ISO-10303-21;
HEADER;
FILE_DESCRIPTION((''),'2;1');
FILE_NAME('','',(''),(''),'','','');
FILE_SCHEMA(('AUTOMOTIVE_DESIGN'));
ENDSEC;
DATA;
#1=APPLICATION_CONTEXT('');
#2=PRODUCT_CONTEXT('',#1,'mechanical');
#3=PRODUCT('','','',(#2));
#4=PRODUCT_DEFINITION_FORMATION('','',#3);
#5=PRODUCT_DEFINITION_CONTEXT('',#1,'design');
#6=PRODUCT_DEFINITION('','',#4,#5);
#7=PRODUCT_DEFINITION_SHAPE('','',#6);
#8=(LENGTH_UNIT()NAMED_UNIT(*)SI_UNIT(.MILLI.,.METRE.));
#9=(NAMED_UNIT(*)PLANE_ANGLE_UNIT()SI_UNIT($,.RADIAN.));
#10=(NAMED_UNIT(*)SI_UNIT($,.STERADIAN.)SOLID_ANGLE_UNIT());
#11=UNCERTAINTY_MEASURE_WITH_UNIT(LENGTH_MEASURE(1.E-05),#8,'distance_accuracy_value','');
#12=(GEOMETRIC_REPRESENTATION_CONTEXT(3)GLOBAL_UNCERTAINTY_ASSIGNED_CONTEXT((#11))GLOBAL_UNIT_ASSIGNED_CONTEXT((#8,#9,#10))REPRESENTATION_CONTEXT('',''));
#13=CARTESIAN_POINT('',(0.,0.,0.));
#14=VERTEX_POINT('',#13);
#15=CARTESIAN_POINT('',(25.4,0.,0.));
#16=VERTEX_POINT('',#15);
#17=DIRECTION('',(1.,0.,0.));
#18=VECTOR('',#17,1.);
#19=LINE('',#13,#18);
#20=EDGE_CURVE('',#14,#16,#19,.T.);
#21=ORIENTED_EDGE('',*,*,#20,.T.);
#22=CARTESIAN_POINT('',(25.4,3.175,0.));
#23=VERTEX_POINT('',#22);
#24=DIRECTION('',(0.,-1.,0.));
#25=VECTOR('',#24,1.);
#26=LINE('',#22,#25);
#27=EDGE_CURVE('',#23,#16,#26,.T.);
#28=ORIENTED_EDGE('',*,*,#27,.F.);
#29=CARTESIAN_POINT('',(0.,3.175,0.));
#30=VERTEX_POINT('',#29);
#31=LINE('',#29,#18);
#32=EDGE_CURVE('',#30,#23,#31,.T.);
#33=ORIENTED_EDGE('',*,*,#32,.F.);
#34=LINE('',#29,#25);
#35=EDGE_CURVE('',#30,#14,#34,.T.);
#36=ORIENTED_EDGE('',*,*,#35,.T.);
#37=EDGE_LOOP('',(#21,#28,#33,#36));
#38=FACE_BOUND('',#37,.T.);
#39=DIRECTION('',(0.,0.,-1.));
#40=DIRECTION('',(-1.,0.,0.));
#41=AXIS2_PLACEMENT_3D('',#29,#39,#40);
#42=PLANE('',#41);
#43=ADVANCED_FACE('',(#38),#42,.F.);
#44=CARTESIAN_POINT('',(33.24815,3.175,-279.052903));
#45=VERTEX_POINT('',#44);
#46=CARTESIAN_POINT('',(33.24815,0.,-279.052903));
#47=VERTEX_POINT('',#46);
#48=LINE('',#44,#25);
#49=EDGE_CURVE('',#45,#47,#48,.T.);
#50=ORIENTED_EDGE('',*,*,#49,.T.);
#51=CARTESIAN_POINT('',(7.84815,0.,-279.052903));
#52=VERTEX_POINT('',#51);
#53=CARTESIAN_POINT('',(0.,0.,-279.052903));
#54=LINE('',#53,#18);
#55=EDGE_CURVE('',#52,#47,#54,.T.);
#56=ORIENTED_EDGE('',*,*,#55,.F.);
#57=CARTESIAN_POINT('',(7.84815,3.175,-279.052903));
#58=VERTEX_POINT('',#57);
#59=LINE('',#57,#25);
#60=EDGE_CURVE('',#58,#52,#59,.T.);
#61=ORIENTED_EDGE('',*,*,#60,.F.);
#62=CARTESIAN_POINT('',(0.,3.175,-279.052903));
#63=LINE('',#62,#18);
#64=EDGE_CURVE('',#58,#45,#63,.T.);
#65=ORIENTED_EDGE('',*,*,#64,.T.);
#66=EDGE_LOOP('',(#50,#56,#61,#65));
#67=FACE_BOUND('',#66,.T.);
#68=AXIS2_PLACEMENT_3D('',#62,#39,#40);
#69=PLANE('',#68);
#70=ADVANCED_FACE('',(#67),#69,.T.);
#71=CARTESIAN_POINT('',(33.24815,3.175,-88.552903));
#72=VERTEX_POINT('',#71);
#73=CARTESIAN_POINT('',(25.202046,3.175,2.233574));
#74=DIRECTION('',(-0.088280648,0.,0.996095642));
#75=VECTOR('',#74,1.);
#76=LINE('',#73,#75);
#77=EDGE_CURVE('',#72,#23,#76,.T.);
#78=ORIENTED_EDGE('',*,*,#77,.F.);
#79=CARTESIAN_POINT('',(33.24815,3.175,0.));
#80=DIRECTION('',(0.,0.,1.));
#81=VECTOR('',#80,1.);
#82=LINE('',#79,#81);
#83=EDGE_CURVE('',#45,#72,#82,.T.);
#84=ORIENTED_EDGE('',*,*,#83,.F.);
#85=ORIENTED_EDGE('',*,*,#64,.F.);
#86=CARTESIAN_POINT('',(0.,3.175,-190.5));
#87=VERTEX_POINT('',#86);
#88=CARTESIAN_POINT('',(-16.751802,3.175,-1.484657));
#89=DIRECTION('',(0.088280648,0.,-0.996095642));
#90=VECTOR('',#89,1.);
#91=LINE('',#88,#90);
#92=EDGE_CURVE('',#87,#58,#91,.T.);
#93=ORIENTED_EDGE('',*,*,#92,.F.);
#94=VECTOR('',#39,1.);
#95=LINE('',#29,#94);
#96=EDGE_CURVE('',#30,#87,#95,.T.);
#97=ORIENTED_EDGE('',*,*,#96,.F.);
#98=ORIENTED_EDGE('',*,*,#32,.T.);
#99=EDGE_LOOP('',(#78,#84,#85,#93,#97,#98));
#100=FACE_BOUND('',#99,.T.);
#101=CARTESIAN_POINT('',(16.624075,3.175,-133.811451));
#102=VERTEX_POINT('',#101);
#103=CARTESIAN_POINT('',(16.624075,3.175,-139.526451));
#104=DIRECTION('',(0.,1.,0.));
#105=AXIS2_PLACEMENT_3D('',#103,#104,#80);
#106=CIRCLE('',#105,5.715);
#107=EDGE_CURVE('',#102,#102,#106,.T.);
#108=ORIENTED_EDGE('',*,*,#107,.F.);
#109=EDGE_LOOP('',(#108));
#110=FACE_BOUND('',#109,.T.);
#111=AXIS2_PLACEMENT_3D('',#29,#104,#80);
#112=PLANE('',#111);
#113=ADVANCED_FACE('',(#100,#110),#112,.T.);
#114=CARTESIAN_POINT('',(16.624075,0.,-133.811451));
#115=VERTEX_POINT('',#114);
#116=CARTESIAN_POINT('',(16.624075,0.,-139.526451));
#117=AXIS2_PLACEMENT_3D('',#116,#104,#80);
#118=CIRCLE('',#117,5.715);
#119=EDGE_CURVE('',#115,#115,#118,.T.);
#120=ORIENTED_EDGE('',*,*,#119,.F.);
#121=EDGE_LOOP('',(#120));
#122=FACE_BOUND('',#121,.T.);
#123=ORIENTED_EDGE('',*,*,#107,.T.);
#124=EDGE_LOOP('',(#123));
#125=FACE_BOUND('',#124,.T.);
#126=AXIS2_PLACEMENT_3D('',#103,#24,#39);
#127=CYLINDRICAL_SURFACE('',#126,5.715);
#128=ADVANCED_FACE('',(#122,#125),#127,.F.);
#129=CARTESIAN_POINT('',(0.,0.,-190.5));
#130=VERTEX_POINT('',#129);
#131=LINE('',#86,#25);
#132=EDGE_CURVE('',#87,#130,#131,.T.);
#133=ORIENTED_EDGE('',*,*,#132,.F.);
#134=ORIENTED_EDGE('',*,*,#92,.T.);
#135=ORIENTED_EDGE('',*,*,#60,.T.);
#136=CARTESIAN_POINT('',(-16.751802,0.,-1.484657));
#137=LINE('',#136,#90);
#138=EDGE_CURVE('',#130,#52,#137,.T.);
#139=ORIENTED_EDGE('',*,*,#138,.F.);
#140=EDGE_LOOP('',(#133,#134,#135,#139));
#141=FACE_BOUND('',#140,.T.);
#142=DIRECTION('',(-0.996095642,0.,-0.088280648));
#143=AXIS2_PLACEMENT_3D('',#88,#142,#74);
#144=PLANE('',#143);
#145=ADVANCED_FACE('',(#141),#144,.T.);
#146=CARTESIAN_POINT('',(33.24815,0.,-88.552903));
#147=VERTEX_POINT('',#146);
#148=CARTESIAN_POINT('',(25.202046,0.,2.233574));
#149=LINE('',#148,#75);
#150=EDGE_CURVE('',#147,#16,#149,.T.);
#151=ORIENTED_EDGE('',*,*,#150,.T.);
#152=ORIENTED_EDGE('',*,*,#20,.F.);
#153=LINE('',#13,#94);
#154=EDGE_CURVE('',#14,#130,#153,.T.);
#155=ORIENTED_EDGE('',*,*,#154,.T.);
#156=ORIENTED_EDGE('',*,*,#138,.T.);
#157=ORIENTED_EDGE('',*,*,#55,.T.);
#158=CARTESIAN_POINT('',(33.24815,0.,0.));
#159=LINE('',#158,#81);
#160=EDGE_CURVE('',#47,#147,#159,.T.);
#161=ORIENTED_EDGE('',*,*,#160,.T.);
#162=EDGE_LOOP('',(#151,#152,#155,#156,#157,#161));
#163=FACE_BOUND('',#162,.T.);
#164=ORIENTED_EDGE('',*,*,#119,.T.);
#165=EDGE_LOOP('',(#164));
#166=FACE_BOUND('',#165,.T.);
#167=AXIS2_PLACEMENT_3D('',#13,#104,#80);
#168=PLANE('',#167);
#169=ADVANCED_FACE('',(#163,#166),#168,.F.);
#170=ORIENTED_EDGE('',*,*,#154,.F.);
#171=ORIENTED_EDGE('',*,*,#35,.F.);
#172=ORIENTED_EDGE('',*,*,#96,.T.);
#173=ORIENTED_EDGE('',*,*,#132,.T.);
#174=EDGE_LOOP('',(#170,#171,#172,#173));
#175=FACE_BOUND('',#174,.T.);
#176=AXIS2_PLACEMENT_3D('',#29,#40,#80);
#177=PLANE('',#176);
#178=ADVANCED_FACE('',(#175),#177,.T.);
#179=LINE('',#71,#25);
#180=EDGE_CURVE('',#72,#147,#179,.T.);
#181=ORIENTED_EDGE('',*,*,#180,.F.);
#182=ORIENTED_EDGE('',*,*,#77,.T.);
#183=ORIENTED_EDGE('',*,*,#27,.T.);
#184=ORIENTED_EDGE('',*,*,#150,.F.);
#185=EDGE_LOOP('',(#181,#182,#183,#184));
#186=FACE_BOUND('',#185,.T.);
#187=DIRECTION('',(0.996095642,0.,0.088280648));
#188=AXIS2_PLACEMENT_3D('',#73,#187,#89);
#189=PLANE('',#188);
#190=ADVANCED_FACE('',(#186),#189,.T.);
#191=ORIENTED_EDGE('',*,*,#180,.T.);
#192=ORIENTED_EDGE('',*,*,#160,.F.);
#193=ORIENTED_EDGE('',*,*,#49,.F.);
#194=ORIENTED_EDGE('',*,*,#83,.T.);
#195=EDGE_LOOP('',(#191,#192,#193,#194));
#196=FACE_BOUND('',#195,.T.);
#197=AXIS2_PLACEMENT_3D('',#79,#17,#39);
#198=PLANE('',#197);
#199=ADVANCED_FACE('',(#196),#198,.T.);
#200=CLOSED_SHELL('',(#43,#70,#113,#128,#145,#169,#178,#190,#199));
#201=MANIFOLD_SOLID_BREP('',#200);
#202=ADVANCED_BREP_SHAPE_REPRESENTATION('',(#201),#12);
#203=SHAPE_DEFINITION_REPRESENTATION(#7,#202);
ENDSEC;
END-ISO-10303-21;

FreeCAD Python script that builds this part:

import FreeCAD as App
import Part
import Sketcher

V = App.Vector
Q = App.Units.Quantity


def add_polygon(sketch, points):
    """Adds a closed chain of lines whose ends are joined by coincident constraints."""
    first, n = sketch.GeometryCount, len(points)
    for a, b in zip(points, points[1:] + points[:1]):
        sketch.addGeometry(Part.LineSegment(App.Vector(*a, 0), App.Vector(*b, 0)), False)
    for i in range(n):
        sketch.addConstraint(Sketcher.Constraint("Coincident", first + i, 2, first + (i + 1) % n, 1))

doc = App.newDocument("Part")
body = doc.addObject("PartDesign::Body", "Body")

# Sketch on XZ plane
sketch1 = body.newObject("Sketcher::SketchObject", "Sketch")
sketch1.AttachmentSupport = (doc.getObject("XZ_Plane"), [""])
sketch1.MapMode = "FlatFace"
add_polygon(sketch1, [(0, -190.5), (0, 0), (25.4, 0), (33.24815, -88.552903), (33.24815, -279.052903), (7.84815, -279.052903)])  # lines 0-5
sketch1.addGeometry(Part.Circle(V(16.624075, -139.526451, 0), V(0, 0, 1), 5.715), False)  # 6
sketch1.addConstraint(Sketcher.Constraint("Vertical", 0))
sketch1.addConstraint(Sketcher.Constraint("Horizontal", 1))
sketch1.addConstraint(Sketcher.Constraint("Vertical", 3))
sketch1.addConstraint(Sketcher.Constraint("Horizontal", 4))
sketch1.addConstraint(Sketcher.Constraint("Coincident", 0, 2, -1, 1))
sketch1.addConstraint(Sketcher.Constraint("Parallel", 2, 5))
sketch1.addConstraint(Sketcher.Constraint("Equal", 1, 4))
sketch1.addConstraint(Sketcher.Constraint("Diameter", 6, Q("0.45 in")))
sketch1.addConstraint(Sketcher.Constraint("DistanceX", 1, 1, 1, 2, Q("1 in")))
sketch1.addConstraint(Sketcher.Constraint("DistanceY", 0, 1, 0, 2, Q("7.5 in")))
sketch1.addConstraint(Sketcher.Constraint("Distance", 2, Q("3.5 in")))
sketch1.addConstraint(Sketcher.Constraint("DistanceY", 6, 3, -1, 1, Q("139.526451 mm")))
sketch1.addConstraint(Sketcher.Constraint("DistanceX", -1, 1, 2, 2, Q("33.24815 mm")))
sketch1.addConstraint(Sketcher.Constraint("DistanceX", -1, 1, 6, 3, Q("16.624075 mm")))
pad1 = body.newObject("PartDesign::Pad", "Pad")
pad1.Profile = sketch1
pad1.Length = Q("0.125 in")
pad1.Reversed = True

doc.recompute()
